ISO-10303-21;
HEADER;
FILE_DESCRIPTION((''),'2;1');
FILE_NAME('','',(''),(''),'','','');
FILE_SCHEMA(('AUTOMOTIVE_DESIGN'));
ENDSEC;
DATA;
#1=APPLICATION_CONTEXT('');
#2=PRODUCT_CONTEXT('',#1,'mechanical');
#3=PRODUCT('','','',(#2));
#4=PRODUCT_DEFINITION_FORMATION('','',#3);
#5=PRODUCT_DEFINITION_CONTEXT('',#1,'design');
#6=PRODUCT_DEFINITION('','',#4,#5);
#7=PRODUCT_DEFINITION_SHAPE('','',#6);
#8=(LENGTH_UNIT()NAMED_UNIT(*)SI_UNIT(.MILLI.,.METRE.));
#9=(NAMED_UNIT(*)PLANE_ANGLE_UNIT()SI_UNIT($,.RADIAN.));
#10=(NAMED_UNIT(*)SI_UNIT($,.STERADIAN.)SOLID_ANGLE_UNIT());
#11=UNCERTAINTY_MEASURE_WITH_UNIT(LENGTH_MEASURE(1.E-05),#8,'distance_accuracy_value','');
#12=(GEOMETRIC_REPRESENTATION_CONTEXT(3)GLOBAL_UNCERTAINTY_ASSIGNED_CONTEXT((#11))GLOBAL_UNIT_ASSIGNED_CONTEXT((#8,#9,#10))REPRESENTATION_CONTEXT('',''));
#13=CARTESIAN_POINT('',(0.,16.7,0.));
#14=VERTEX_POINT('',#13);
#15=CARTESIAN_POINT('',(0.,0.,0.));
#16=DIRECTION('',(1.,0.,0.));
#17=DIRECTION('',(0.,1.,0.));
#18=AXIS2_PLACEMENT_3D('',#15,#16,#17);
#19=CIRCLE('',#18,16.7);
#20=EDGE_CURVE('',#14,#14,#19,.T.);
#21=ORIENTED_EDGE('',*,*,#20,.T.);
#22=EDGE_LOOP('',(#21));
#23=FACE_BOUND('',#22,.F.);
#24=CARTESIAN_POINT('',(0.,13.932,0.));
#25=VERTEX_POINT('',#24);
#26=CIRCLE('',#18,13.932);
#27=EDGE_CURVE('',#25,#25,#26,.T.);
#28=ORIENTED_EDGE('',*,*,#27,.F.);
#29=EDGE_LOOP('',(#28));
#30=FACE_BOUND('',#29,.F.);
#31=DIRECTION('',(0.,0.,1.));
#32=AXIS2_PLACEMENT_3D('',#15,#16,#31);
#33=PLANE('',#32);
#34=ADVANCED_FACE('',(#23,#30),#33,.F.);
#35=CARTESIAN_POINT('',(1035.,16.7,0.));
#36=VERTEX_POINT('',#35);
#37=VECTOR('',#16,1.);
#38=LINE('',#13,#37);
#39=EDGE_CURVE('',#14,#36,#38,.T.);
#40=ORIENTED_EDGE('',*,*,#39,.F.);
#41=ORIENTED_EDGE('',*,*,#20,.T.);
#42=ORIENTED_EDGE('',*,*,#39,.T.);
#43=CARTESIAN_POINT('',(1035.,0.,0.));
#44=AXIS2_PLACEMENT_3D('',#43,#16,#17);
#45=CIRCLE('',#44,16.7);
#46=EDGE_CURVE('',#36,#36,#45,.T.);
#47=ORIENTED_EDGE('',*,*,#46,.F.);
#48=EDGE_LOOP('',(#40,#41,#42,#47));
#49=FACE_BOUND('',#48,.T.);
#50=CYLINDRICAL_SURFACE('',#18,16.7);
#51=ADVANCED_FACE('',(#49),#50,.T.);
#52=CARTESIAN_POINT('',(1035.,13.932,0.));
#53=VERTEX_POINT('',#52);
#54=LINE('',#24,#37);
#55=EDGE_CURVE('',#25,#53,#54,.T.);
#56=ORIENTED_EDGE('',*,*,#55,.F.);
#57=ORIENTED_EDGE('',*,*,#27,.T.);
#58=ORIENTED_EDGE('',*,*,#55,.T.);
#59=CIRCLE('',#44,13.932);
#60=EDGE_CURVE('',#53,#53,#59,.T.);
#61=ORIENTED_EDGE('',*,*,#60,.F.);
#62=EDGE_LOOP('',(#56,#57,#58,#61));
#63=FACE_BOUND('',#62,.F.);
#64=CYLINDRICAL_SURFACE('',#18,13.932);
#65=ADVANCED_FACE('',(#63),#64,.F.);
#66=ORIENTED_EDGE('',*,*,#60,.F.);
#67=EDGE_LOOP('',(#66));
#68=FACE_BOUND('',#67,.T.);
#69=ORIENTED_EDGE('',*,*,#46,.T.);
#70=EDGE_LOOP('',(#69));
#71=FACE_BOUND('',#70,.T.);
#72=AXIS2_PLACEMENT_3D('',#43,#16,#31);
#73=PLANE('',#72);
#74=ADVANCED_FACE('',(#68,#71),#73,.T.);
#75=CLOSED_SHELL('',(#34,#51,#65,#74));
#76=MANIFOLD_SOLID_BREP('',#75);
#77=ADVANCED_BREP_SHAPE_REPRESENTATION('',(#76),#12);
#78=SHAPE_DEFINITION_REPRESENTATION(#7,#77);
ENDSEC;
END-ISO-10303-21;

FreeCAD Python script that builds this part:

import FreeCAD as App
import Part
import Sketcher
from FreeCAD import Vector

doc = App.newDocument("Part")
body = doc.addObject("PartDesign::Body", "Body")

sketch1 = body.newObject("Sketcher::SketchObject", "Sketch")
sketch1.AttachmentSupport = (doc.getObject("YZ_Plane"), [""])
sketch1.MapMode = "FlatFace"
sketch1.addGeometry(Part.Circle(Vector(0, 0, 0), Vector(0, 0, 1), 16.7), False)
sketch1.addGeometry(Part.Circle(Vector(0, 0, 0), Vector(0, 0, 1), 13.932), False)
sketch1.addConstraint(Sketcher.Constraint("Coincident", 0, 3, -1, 1))
sketch1.addConstraint(Sketcher.Constraint("Coincident", 1, 3, -1, 1))
sketch1.addConstraint(Sketcher.Constraint("Diameter", 0, 33.4))
sketch1.addConstraint(Sketcher.Constraint("Diameter", 1, 27.864))

sketch2 = body.newObject("Sketcher::SketchObject", "Sketch001")
sketch2.AttachmentSupport = (doc.getObject("XY_Plane"), [""])
sketch2.MapMode = "FlatFace"
sketch2.addGeometry(Part.LineSegment(Vector(0, 0, 0), Vector(1035, 0, 0)), False)
sketch2.addConstraint(Sketcher.Constraint("Horizontal", 0))
sketch2.addConstraint(Sketcher.Constraint("Coincident", 0, 1, -1, 1))
sketch2.addConstraint(Sketcher.Constraint("DistanceX", 0, 1, 0, 2, 1035.0))
doc.recompute()

additivepipe = body.newObject("PartDesign::AdditivePipe", "AdditivePipe")
additivepipe.Profile = sketch1
additivepipe.Spine = (sketch2, ["Edge1"])

doc.recompute()
